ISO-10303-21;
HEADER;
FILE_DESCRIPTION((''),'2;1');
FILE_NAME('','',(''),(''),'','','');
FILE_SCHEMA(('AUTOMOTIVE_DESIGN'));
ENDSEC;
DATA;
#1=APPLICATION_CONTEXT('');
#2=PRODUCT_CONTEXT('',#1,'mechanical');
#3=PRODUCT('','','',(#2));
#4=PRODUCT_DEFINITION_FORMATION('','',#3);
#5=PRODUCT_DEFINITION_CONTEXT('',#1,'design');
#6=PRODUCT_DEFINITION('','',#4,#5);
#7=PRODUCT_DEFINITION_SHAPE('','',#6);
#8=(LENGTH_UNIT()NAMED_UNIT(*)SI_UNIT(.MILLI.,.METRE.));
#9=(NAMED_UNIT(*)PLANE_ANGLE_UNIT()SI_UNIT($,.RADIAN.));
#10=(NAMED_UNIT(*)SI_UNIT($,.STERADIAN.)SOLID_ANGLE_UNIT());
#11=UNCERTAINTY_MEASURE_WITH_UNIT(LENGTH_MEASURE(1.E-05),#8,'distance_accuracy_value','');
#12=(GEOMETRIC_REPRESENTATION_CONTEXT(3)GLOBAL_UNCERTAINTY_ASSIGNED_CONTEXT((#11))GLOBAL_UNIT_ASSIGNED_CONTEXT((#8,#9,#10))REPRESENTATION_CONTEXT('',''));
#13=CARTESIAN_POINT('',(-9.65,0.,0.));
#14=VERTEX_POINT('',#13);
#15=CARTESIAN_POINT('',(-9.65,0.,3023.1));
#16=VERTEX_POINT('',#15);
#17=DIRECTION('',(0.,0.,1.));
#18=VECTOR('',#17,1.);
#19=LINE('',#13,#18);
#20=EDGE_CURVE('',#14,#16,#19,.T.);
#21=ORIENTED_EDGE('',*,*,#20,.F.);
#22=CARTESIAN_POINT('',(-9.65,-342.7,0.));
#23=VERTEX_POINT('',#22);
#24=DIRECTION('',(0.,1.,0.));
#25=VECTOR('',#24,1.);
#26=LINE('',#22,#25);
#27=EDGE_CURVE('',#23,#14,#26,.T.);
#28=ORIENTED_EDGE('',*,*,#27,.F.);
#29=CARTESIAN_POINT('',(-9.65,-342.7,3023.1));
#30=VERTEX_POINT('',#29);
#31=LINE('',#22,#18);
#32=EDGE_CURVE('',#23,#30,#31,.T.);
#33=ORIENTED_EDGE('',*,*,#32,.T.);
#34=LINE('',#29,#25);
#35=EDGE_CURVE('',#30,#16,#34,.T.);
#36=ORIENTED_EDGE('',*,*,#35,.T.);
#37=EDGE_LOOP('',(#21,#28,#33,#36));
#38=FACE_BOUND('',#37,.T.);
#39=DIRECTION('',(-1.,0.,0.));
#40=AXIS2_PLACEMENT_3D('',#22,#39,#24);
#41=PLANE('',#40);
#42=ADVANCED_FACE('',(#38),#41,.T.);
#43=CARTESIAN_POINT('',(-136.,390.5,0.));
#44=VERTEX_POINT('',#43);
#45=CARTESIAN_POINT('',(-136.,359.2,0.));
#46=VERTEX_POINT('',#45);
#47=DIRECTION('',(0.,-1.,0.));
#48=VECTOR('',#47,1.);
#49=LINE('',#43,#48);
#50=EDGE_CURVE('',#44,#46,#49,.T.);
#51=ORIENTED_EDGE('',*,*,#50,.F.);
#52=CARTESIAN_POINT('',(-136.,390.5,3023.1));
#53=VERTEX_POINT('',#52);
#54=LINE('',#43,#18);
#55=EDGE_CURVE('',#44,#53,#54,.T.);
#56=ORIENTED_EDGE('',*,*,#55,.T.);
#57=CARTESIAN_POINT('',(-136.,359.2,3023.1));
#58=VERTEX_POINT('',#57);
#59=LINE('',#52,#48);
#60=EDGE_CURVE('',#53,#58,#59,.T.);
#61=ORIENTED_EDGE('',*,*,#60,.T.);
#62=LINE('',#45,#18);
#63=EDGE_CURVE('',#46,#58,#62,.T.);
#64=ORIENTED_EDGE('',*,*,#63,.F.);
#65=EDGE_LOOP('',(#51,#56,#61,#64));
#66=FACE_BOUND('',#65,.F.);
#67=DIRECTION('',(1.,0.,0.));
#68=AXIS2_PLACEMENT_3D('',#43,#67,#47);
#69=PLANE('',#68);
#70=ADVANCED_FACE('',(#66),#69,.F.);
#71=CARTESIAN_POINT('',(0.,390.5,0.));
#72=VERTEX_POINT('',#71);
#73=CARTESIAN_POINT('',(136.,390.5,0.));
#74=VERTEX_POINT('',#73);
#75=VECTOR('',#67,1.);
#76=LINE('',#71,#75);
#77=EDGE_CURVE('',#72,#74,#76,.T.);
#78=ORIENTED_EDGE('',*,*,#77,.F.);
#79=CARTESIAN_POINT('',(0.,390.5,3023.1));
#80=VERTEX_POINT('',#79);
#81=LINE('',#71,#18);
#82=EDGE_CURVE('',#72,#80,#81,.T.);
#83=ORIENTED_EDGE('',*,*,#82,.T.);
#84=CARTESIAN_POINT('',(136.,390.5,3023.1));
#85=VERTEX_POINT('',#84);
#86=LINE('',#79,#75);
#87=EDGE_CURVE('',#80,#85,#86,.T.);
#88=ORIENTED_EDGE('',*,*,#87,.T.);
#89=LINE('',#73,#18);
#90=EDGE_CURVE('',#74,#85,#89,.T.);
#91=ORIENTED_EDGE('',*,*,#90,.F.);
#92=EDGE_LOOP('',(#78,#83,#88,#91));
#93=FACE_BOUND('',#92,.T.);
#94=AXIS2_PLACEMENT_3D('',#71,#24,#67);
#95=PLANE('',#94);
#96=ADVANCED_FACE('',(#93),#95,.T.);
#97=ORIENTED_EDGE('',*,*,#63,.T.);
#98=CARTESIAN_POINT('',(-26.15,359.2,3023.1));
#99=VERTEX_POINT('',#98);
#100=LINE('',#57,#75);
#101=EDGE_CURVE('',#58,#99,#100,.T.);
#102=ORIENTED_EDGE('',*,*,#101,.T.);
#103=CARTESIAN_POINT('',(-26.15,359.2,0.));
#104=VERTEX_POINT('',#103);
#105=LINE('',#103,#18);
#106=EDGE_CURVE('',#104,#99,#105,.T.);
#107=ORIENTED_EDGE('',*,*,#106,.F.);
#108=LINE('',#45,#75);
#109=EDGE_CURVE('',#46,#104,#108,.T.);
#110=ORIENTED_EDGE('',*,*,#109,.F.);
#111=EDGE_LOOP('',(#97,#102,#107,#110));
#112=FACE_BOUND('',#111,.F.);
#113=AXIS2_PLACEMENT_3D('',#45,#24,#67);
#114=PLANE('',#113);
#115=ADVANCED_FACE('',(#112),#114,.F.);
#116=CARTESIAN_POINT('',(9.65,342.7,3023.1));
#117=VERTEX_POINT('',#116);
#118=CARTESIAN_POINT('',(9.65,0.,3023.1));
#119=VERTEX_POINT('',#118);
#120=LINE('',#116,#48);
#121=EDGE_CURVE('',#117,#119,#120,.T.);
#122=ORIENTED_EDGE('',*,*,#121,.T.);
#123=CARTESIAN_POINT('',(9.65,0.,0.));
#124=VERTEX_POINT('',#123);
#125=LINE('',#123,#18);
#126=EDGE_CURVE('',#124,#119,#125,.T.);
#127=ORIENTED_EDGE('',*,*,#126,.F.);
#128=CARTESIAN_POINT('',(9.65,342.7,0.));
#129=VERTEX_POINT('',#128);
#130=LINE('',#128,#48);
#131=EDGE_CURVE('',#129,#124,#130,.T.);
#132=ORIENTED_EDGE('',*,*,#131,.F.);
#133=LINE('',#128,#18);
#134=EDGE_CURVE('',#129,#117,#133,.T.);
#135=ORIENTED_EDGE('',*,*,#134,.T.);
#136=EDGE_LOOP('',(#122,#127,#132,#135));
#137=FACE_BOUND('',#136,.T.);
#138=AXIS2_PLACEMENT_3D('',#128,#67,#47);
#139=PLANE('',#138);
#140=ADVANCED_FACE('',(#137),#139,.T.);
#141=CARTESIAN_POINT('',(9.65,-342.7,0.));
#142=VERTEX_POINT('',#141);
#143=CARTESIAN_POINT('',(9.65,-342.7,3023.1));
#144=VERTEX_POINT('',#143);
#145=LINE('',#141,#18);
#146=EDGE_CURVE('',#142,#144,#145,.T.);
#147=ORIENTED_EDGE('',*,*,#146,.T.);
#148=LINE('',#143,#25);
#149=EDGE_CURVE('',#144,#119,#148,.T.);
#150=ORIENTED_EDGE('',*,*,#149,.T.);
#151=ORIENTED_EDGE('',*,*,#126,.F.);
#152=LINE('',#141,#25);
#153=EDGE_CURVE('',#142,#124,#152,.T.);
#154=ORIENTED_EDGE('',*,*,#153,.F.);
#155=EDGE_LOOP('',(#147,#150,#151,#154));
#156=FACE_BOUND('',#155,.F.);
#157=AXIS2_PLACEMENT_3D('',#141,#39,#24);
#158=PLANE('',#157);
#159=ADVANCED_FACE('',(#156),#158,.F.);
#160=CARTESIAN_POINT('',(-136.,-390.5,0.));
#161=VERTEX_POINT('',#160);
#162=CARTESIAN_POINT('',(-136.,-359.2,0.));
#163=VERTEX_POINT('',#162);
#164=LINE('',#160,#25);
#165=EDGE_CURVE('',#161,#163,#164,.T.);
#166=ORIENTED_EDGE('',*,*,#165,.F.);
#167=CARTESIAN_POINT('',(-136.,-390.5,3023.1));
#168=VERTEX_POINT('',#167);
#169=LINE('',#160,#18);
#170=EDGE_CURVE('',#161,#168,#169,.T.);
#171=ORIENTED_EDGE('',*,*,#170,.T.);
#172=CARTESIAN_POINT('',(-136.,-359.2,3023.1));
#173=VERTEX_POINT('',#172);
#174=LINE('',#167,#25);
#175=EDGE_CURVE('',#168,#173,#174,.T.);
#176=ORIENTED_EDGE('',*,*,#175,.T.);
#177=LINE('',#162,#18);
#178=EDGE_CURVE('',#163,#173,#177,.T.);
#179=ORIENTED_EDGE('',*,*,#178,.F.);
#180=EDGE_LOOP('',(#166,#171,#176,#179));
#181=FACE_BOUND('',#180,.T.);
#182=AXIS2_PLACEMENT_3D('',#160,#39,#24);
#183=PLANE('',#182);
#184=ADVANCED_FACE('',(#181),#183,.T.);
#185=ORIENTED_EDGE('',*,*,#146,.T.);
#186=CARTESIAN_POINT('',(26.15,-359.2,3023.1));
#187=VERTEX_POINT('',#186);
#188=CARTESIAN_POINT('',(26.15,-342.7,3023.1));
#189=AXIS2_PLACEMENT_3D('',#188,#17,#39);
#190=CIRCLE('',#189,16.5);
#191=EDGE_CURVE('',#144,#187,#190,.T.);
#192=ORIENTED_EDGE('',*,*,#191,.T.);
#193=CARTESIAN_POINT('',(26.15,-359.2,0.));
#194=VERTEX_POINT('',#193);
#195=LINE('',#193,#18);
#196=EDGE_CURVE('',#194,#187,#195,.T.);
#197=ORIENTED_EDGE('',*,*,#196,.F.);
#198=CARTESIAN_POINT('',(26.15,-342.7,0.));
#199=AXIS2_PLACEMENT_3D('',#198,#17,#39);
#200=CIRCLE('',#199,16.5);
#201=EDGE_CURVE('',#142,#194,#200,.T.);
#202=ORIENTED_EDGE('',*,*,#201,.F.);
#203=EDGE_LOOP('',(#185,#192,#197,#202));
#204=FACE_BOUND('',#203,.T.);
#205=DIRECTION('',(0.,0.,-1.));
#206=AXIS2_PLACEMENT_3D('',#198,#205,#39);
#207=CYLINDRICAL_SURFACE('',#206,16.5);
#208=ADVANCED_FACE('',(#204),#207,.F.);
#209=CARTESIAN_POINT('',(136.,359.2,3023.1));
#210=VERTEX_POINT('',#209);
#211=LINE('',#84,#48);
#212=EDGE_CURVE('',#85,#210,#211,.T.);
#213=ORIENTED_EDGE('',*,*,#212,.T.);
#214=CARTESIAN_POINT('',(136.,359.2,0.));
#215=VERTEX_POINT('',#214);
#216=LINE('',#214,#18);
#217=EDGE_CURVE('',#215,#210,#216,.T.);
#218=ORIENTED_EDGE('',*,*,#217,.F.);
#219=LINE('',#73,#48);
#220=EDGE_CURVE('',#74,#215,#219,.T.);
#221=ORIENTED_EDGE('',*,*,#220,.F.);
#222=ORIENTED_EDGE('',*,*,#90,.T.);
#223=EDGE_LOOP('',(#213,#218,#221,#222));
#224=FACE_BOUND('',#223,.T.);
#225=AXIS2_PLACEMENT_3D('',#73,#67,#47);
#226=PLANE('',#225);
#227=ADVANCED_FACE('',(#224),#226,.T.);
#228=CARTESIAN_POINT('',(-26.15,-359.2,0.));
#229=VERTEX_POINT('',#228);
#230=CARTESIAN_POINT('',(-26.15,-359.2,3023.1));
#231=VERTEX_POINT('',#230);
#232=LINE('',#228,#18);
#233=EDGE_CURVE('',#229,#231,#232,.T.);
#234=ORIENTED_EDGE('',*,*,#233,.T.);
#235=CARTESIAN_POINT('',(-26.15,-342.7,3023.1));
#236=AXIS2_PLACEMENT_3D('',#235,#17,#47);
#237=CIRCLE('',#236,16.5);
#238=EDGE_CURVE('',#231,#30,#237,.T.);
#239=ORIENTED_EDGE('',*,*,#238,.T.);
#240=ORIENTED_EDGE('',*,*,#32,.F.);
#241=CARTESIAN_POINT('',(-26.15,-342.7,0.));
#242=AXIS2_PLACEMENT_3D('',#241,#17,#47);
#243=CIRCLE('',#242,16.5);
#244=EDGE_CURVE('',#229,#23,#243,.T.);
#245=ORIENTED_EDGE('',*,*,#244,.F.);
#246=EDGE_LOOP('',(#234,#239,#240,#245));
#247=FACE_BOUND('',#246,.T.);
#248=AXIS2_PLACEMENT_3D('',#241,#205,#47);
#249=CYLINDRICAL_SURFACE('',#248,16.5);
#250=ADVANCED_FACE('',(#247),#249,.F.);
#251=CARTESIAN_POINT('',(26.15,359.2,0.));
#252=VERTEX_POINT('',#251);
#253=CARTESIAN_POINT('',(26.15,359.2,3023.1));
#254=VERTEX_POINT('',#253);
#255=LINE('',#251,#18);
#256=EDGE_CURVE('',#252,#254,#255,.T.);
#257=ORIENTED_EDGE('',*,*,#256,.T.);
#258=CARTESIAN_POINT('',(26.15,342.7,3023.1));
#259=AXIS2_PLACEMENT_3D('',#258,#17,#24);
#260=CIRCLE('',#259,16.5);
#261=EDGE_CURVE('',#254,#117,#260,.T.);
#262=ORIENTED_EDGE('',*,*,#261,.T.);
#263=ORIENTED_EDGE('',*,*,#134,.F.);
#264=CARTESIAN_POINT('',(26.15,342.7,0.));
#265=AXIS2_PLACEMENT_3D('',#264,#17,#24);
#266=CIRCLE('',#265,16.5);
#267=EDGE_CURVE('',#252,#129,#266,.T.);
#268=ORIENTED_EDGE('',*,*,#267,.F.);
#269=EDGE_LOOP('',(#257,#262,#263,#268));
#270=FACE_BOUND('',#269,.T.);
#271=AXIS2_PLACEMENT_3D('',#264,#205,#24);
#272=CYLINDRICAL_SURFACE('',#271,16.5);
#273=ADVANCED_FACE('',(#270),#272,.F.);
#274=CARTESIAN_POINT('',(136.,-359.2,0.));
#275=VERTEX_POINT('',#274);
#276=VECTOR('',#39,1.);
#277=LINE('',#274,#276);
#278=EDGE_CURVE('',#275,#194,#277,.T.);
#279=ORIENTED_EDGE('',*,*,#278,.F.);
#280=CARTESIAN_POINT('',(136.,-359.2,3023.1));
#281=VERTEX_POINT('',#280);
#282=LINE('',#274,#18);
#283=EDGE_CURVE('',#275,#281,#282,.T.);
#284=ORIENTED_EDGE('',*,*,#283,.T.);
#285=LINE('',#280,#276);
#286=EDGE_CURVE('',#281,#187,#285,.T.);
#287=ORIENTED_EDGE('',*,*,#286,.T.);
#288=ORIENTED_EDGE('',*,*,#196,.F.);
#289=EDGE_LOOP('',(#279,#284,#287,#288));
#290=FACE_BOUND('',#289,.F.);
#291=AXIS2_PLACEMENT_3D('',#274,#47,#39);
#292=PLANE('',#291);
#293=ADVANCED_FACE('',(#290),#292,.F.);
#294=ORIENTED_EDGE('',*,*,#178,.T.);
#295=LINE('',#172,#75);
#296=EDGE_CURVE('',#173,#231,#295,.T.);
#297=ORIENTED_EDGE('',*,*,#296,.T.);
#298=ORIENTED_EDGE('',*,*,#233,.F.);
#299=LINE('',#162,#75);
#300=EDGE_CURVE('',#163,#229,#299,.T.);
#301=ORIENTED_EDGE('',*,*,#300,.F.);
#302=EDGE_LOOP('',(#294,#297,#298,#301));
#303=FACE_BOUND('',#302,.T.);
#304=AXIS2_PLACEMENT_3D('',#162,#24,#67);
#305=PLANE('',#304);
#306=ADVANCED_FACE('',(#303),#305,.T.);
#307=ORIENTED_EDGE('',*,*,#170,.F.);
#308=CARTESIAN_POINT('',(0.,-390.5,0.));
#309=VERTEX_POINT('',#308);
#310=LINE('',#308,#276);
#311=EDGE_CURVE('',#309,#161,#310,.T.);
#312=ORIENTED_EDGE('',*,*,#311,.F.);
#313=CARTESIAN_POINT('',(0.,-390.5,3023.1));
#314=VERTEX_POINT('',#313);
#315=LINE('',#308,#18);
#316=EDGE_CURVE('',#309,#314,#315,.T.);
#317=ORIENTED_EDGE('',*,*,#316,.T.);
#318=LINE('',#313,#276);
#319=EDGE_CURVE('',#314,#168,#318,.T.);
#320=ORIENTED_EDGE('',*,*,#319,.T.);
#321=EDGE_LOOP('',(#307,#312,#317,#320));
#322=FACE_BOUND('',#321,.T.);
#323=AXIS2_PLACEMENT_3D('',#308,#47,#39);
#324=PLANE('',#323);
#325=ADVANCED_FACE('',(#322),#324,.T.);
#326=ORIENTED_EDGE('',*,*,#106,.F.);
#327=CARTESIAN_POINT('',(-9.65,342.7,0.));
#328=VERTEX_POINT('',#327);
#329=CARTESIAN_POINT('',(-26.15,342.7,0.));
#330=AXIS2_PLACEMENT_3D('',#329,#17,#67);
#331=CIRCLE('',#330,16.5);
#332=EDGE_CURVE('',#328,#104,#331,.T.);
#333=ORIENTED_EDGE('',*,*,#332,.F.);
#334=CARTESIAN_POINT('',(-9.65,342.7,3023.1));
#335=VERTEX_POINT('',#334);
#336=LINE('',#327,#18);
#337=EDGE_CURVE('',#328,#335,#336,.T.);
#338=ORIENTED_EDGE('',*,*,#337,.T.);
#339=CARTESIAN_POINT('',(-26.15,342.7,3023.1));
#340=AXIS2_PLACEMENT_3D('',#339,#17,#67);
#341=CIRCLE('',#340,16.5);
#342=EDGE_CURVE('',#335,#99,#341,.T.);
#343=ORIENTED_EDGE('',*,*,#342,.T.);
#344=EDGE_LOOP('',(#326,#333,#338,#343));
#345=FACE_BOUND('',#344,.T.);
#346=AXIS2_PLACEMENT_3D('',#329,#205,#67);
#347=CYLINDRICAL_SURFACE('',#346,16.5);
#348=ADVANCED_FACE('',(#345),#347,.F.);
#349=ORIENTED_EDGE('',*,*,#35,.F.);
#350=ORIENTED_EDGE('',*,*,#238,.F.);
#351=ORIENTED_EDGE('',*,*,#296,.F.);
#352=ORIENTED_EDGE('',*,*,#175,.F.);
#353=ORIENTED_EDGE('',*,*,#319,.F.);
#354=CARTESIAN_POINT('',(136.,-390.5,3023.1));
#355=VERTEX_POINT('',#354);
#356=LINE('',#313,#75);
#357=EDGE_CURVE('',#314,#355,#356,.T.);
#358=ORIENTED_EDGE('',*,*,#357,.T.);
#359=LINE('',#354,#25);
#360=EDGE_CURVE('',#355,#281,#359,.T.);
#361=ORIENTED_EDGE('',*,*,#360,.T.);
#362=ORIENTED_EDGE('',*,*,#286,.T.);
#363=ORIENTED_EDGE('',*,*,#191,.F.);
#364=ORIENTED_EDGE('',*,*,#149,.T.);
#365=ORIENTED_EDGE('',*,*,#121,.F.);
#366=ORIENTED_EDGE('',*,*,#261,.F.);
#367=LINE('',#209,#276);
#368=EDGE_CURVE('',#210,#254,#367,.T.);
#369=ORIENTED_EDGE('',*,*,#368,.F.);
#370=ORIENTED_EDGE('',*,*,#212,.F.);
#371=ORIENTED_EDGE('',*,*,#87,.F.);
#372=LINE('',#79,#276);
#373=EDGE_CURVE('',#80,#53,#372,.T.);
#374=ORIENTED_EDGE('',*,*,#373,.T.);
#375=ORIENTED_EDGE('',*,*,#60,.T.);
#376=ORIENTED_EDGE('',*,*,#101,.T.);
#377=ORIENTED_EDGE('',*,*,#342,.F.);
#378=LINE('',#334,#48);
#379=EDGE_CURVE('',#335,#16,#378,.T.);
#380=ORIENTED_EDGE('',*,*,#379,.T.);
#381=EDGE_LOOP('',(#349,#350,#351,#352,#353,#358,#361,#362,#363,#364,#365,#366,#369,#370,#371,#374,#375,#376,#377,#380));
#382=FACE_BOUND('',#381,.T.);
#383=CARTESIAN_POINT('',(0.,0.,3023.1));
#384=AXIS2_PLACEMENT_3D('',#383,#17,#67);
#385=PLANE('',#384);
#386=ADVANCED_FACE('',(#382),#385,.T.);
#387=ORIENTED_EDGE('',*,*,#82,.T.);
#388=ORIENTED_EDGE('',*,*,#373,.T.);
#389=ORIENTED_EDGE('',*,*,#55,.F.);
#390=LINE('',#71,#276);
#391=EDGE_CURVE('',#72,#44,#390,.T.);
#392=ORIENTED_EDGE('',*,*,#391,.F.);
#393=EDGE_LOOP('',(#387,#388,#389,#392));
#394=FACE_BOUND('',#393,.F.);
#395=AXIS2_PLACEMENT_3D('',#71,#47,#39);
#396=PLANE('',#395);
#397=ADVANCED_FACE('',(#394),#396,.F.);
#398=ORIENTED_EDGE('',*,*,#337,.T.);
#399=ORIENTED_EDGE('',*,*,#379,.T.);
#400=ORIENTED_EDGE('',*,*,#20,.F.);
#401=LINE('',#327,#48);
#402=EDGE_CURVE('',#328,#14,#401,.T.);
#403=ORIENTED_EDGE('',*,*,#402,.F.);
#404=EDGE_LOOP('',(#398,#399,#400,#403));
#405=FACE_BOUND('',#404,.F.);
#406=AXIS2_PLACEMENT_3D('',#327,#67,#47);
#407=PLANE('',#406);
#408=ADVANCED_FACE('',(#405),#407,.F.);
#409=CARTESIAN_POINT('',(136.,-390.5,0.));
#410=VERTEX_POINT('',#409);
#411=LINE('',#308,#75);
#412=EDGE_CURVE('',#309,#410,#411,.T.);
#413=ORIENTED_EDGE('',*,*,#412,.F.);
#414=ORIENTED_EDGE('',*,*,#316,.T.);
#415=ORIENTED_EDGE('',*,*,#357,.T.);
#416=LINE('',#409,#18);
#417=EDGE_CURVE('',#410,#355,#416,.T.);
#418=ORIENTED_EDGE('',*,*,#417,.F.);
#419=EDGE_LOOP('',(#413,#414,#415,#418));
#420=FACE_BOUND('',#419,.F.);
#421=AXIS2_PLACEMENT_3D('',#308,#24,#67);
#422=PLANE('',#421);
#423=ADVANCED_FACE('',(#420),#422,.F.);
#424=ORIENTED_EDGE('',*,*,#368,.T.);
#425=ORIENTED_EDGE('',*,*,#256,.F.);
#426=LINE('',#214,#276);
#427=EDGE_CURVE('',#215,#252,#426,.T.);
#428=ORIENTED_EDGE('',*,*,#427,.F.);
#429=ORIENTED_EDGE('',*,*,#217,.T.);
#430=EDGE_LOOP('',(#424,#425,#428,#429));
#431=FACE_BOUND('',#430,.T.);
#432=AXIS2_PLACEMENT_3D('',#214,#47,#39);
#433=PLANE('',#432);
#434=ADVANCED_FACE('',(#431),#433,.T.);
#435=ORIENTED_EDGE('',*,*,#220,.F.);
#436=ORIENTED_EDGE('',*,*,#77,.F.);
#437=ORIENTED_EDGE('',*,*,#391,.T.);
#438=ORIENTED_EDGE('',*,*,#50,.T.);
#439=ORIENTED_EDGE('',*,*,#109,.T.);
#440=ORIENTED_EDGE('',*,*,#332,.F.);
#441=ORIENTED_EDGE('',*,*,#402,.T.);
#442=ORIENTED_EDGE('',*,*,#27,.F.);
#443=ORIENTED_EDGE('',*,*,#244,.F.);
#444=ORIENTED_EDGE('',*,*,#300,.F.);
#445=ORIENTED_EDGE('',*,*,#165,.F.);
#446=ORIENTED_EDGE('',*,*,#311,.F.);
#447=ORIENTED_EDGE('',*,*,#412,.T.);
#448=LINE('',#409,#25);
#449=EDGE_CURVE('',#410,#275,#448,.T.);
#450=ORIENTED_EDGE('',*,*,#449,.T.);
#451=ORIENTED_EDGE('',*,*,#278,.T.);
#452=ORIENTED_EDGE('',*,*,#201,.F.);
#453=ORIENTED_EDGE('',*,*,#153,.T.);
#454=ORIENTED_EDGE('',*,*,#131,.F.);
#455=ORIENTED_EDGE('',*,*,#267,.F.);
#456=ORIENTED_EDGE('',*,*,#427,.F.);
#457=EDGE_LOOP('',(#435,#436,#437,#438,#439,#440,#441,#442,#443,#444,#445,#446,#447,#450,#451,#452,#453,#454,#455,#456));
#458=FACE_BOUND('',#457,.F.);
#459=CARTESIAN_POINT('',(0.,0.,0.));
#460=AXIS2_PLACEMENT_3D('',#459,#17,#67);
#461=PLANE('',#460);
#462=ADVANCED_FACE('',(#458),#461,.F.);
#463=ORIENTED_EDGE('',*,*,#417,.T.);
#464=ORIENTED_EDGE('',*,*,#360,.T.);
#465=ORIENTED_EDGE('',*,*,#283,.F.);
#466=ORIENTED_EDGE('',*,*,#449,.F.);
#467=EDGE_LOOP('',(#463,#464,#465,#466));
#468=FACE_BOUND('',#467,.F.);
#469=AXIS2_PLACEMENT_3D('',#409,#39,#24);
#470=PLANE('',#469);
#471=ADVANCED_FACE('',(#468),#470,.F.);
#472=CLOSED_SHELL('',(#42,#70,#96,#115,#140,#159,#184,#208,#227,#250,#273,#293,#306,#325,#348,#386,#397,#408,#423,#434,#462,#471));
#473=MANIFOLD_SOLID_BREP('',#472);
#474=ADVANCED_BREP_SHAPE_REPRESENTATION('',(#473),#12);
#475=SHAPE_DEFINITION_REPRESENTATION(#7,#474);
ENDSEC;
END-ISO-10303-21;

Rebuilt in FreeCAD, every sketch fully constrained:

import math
import FreeCAD as App
import Part
import Sketcher
Q = App.Units.Quantity

doc = App.newDocument("Part")
params = doc.addObject("Spreadsheet::Sheet", "Params")
for row, (alias, value) in enumerate([
    ("sketch1_radius", "16.5 mm"),
    ("sketch1_height", "31.3 mm"),
    ("pad1_length", "3023.1 mm"),
], start=1):
    params.set(f"A{row}", alias)
    params.set(f"B{row}", "=" + value)
    params.setAlias(f"B{row}", alias)

body = doc.addObject("PartDesign::Body", "Body")

# Sketch on XY plane
sketch1 = body.newObject("Sketcher::SketchObject", "Sketch")
sketch1.AttachmentSupport = (doc.getObject("XY_Plane"), [""])
sketch1.MapMode = "FlatFace"
sketch1.addGeometry([
    Part.LineSegment(App.Vector(-136, -359, 0), App.Vector(-136, -390, 0)),  # 0
    Part.LineSegment(App.Vector(-136, -390, 0), App.Vector(136, -390, 0)),  # 1
    Part.LineSegment(App.Vector(136, -390, 0), App.Vector(136, -359, 0)),  # 2
    Part.LineSegment(App.Vector(136, -359, 0), App.Vector(26, -359, 0)),  # 3
    Part.ArcOfCircle(Part.Circle(App.Vector(26, -343, 0), App.Vector(0, 0, 1), 16), math.radians(180), math.radians(270)),  # 4
    Part.LineSegment(App.Vector(10, -343, 0), App.Vector(10, 343, 0)),  # 5
    Part.ArcOfCircle(Part.Circle(App.Vector(26, 343, 0), App.Vector(0, 0, 1), 16), math.radians(90), math.radians(180)),  # 6
    Part.LineSegment(App.Vector(26, 359, 0), App.Vector(136, 359, 0)),  # 7
    Part.LineSegment(App.Vector(136, 359, 0), App.Vector(136, 390, 0)),  # 8
    Part.LineSegment(App.Vector(136, 390, 0), App.Vector(-136, 390, 0)),  # 9
    Part.LineSegment(App.Vector(-136, 390, 0), App.Vector(-136, 359, 0)),  # 10
    Part.LineSegment(App.Vector(-136, 359, 0), App.Vector(-26, 359, 0)),  # 11
    Part.ArcOfCircle(Part.Circle(App.Vector(-26, 343, 0), App.Vector(0, 0, 1), 16), math.radians(0), math.radians(90)),  # 12
    Part.LineSegment(App.Vector(-10, 343, 0), App.Vector(-10, -343, 0)),  # 13
    Part.ArcOfCircle(Part.Circle(App.Vector(-26, -343, 0), App.Vector(0, 0, 1), 16), math.radians(-90), math.radians(0)),  # 14
    Part.LineSegment(App.Vector(-26, -359, 0), App.Vector(-136, -359, 0)),  # 15
], False)
sketch1.addConstraint([
    Sketcher.Constraint("Coincident", 0, 2, 1, 1),
    Sketcher.Constraint("Coincident", 1, 2, 2, 1),
    Sketcher.Constraint("Coincident", 2, 2, 3, 1),
    Sketcher.Constraint("Tangent", 3, 2, 4, 2),
    Sketcher.Constraint("Tangent", 4, 1, 5, 1),
    Sketcher.Constraint("Tangent", 5, 2, 6, 2),
    Sketcher.Constraint("Tangent", 6, 1, 7, 1),
    Sketcher.Constraint("Coincident", 7, 2, 8, 1),
    Sketcher.Constraint("Coincident", 8, 2, 9, 1),
    Sketcher.Constraint("Coincident", 9, 2, 10, 1),
    Sketcher.Constraint("Coincident", 10, 2, 11, 1),
    Sketcher.Constraint("Tangent", 11, 2, 12, 2),
    Sketcher.Constraint("Tangent", 12, 1, 13, 1),
    Sketcher.Constraint("Tangent", 13, 2, 14, 2),
    Sketcher.Constraint("Tangent", 14, 1, 15, 1),
    Sketcher.Constraint("Coincident", 15, 2, 0, 1),
    Sketcher.Constraint("Vertical", 0),
    Sketcher.Constraint("Horizontal", 1),
    Sketcher.Constraint("Vertical", 2),
    Sketcher.Constraint("Horizontal", 3),
    Sketcher.Constraint("Vertical", 5),
    Sketcher.Constraint("Horizontal", 7),
    Sketcher.Constraint("Vertical", 8),
    Sketcher.Constraint("Horizontal", 9),
    Sketcher.Constraint("Vertical", 10),
    Sketcher.Constraint("Horizontal", 11),
    Sketcher.Constraint("Vertical", 13),
    Sketcher.Constraint("Horizontal", 15),
    Sketcher.Constraint("Equal", 4, 6),
    Sketcher.Constraint("Equal", 6, 12),
    Sketcher.Constraint("Equal", 12, 14),
    Sketcher.Constraint("Symmetric", 4, 3, 12, 3, -1, 1),
    Sketcher.Constraint("Symmetric", 0, 2, 8, 2, -1, 1),
    Sketcher.Constraint("Symmetric", 7, 2, 10, 2, -2),
    Sketcher.Constraint("Symmetric", 2, 2, 15, 2, -2),
    Sketcher.Constraint("Radius", 4, Q("16.5 mm")),
    Sketcher.Constraint("DistanceY", 0, 2, 0, 1, Q("31.3 mm")),
    Sketcher.Constraint("DistanceX", 0, 2, -1, 1, Q("136 mm")),
    Sketcher.Constraint("DistanceY", 0, 2, -1, 1, Q("390.5 mm")),
    Sketcher.Constraint("DistanceX", -1, 1, 4, 1, Q("9.65 mm")),
])
sketch1.setExpression("Constraints[35]", "Params.sketch1_radius")
sketch1.setExpression("Constraints[36]", "Params.sketch1_height")
pad1 = body.newObject("PartDesign::Pad", "Pad")
pad1.Profile = sketch1
pad1.setExpression("Length", "Params.pad1_length")

doc.recompute()
